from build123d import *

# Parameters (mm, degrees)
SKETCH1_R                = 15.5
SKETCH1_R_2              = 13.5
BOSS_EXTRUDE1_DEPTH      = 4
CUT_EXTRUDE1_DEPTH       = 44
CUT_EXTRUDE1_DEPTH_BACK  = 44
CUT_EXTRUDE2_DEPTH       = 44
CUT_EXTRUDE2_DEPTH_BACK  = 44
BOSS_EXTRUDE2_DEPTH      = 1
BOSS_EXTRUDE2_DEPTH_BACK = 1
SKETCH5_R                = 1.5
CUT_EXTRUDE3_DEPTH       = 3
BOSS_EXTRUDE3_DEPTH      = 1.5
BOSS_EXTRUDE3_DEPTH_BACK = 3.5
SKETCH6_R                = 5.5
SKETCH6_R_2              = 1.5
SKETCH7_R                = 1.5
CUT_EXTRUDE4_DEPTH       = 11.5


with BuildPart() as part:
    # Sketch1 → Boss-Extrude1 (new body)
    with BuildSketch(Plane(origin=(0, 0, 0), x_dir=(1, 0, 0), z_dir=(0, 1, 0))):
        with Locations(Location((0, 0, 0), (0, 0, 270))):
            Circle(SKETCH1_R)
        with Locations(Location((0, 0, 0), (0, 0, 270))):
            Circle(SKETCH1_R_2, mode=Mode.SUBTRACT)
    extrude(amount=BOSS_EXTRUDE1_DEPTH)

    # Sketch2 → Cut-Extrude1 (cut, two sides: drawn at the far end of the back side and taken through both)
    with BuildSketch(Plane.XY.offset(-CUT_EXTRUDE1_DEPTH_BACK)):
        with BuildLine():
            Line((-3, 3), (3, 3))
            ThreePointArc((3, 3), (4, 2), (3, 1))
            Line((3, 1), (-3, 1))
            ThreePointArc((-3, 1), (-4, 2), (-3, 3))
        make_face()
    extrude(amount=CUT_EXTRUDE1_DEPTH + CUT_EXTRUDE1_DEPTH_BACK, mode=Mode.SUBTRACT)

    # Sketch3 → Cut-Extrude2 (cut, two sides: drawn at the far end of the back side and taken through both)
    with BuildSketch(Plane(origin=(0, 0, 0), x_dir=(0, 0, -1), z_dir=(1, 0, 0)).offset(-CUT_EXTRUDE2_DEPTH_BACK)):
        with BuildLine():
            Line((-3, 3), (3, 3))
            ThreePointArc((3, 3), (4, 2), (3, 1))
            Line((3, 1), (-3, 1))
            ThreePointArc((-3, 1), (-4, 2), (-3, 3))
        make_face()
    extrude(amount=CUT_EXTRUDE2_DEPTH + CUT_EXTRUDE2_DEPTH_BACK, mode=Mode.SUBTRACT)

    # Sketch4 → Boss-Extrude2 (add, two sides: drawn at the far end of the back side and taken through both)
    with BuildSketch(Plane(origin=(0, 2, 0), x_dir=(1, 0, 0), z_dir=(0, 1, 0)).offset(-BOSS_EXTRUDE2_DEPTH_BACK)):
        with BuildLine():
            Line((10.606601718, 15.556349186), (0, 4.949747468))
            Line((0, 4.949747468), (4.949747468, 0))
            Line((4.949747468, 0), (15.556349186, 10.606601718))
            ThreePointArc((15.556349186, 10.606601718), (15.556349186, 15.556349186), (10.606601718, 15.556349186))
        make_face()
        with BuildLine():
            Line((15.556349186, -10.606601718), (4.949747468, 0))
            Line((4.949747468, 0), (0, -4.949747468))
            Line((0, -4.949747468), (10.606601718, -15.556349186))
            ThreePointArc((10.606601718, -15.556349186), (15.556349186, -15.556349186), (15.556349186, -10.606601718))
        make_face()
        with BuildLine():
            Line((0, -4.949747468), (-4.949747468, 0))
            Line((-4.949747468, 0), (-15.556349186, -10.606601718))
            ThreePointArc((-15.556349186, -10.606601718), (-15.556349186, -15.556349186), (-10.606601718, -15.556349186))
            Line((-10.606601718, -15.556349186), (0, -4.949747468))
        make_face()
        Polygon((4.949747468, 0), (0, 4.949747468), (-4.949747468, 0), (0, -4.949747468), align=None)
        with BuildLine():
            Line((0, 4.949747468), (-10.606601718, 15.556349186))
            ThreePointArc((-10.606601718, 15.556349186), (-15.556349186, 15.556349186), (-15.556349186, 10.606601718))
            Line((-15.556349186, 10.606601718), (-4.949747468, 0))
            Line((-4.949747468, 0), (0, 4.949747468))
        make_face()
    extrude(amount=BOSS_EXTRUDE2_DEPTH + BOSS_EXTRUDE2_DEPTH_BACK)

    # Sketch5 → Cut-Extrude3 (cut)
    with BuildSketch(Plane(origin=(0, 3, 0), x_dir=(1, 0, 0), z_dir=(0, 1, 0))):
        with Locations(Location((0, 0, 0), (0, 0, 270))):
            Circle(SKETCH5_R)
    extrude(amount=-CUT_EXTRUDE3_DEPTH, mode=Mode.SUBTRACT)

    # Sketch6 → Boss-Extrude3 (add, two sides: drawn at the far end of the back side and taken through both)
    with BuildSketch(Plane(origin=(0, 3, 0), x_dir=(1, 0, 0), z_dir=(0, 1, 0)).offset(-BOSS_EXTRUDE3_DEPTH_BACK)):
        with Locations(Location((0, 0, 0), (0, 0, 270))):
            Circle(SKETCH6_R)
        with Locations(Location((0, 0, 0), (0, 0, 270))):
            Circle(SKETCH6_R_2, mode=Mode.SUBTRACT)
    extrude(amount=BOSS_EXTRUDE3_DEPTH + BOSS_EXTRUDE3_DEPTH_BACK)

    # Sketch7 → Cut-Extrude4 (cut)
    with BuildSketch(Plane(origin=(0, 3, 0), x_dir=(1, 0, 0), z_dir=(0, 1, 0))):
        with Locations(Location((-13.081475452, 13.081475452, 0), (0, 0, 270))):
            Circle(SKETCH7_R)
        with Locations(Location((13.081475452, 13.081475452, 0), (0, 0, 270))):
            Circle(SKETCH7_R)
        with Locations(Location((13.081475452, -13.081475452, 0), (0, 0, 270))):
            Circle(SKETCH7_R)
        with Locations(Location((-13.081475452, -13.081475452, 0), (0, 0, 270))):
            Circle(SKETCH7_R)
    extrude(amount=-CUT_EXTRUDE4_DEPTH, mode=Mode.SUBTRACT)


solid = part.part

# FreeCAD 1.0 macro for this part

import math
import FreeCAD as App
import Part
import Sketcher
from FreeCAD import Vector
Q = App.Units.Quantity

doc = App.newDocument("Part")
body = doc.addObject("PartDesign::Body", "Body")

# Sketch on XZ plane
sketch1 = body.newObject("Sketcher::SketchObject", "Sketch")
sketch1.AttachmentSupport = (doc.getObject("XZ_Plane"), [""])
sketch1.MapMode = "FlatFace"
sketch1.addGeometry([
    Part.Circle(Vector(0, 0, 0), Vector(0, 0, 1), 16),
    Part.Circle(Vector(0, 0, 0), Vector(0, 0, 1), 14),
], False)
sketch1.addConstraint([
    Sketcher.Constraint("Coincident", 0, 3, -1, 1),
    Sketcher.Constraint("Coincident", 1, 3, -1, 1),
    Sketcher.Constraint("Diameter", 0, Q("31 mm")),
    Sketcher.Constraint("Diameter", 1, Q("27 mm")),
])
pad1 = body.newObject("PartDesign::Pad", "Pad")
pad1.Profile = sketch1
pad1.Length = 4
pad1.Reversed = True

# Sketch on XY plane
sketch2 = body.newObject("Sketcher::SketchObject", "Sketch001")
sketch2.AttachmentSupport = (doc.getObject("XY_Plane"), [""])
sketch2.MapMode = "FlatFace"
sketch2.addGeometry([
    Part.LineSegment(Vector(3, 3, 0), Vector(-3, 3, 0)),
    Part.ArcOfCircle(Part.Circle(Vector(-3, 2, 0), Vector(0, 0, 1), 1), math.radians(90), math.radians(270)),
    Part.LineSegment(Vector(-3, 1, 0), Vector(3, 1, 0)),
    Part.ArcOfCircle(Part.Circle(Vector(3, 2, 0), Vector(0, 0, 1), 1), math.radians(-90), math.radians(90)),
], False)
sketch2.addConstraint([
    Sketcher.Constraint("Tangent", 0, 2, 1, 1),
    Sketcher.Constraint("Tangent", 1, 2, 2, 1),
    Sketcher.Constraint("Tangent", 2, 2, 3, 1),
    Sketcher.Constraint("Tangent", 3, 2, 0, 1),
    Sketcher.Constraint("Horizontal", 0),
    Sketcher.Constraint("Horizontal", 2),
    Sketcher.Constraint("Radius", 1, Q("1 mm")),
    Sketcher.Constraint("DistanceX", 0, 2, 0, 1, Q("6 mm")),
    Sketcher.Constraint("DistanceX", 1, 3, -1, 1, Q("3 mm")),
    Sketcher.Constraint("DistanceY", -1, 1, 1, 3, Q("2 mm")),
])
pocket1 = body.newObject("PartDesign::Pocket", "Pocket")
pocket1.Profile = sketch2
pocket1.Type = "ThroughAll"
pocket1.Midplane = True

# Sketch on YZ plane
sketch3 = body.newObject("Sketcher::SketchObject", "Sketch002")
sketch3.AttachmentSupport = (doc.getObject("YZ_Plane"), [""])
sketch3.MapMode = "FlatFace"
sketch3.addGeometry([
    Part.LineSegment(Vector(3, -3, 0), Vector(3, 3, 0)),
    Part.ArcOfCircle(Part.Circle(Vector(2, 3, 0), Vector(0, 0, 1), 1), math.radians(0), math.radians(180)),
    Part.LineSegment(Vector(1, 3, 0), Vector(1, -3, 0)),
    Part.ArcOfCircle(Part.Circle(Vector(2, -3, 0), Vector(0, 0, 1), 1), math.radians(180), math.radians(360)),
], False)
sketch3.addConstraint([
    Sketcher.Constraint("Tangent", 0, 2, 1, 1),
    Sketcher.Constraint("Tangent", 1, 2, 2, 1),
    Sketcher.Constraint("Tangent", 2, 2, 3, 1),
    Sketcher.Constraint("Tangent", 3, 2, 0, 1),
    Sketcher.Constraint("Vertical", 0),
    Sketcher.Constraint("Vertical", 2),
    Sketcher.Constraint("Radius", 1, Q("1 mm")),
    Sketcher.Constraint("DistanceY", 0, 1, 0, 2, Q("6 mm")),
    Sketcher.Constraint("DistanceX", -1, 1, 1, 3, Q("2 mm")),
    Sketcher.Constraint("DistanceY", -1, 1, 1, 3, Q("3 mm")),
])
pocket2 = body.newObject("PartDesign::Pocket", "Pocket001")
pocket2.Profile = sketch3
pocket2.Type = "ThroughAll"
pocket2.Midplane = True

# Sketch on XZ plane
sketch4 = body.newObject("Sketcher::SketchObject", "Sketch003")
sketch4.AttachmentSupport = (doc.getObject("XZ_Plane"), [""])
sketch4.MapMode = "FlatFace"
sketch4.AttachmentOffset = App.Placement(Vector(0, 0, -2), App.Rotation())
sketch4.addGeometry([
    Part.LineSegment(Vector(10.6, -15.6, 0), Vector(0, -4.9, 0)),  # 0
    Part.LineSegment(Vector(0, -4.9, 0), Vector(-10.6, -15.6, 0)),  # 1
    Part.ArcOfCircle(Part.Circle(Vector(-13.1, -13.1, 0), Vector(0, 0, 1), 3.5), math.radians(135), math.radians(315)),  # 2
    Part.LineSegment(Vector(-15.6, -10.6, 0), Vector(-4.9, 0, 0)),  # 3
    Part.LineSegment(Vector(-4.9, 0, 0), Vector(-15.6, 10.6, 0)),  # 4
    Part.ArcOfCircle(Part.Circle(Vector(-13.1, 13.1, 0), Vector(0, 0, 1), 3.5), math.radians(45), math.radians(225)),  # 5
    Part.LineSegment(Vector(-10.6, 15.6, 0), Vector(0, 4.9, 0)),  # 6
    Part.LineSegment(Vector(0, 4.9, 0), Vector(10.6, 15.6, 0)),  # 7
    Part.ArcOfCircle(Part.Circle(Vector(13.1, 13.1, 0), Vector(0, 0, 1), 3.5), math.radians(-45), math.radians(135)),  # 8
    Part.LineSegment(Vector(15.6, 10.6, 0), Vector(4.9, 0, 0)),  # 9
    Part.LineSegment(Vector(4.9, 0, 0), Vector(15.6, -10.6, 0)),  # 10
    Part.ArcOfCircle(Part.Circle(Vector(13.1, -13.1, 0), Vector(0, 0, 1), 3.5), math.radians(-135), math.radians(45)),  # 11
], False)
sketch4.addConstraint([
    Sketcher.Constraint("Coincident", 0, 2, 1, 1),
    Sketcher.Constraint("Tangent", 1, 2, 2, 2),
    Sketcher.Constraint("Tangent", 2, 1, 3, 1),
    Sketcher.Constraint("Coincident", 3, 2, 4, 1),
    Sketcher.Constraint("Tangent", 4, 2, 5, 2),
    Sketcher.Constraint("Tangent", 5, 1, 6, 1),
    Sketcher.Constraint("Coincident", 6, 2, 7, 1),
    Sketcher.Constraint("Tangent", 7, 2, 8, 2),
    Sketcher.Constraint("Tangent", 8, 1, 9, 1),
    Sketcher.Constraint("Coincident", 9, 2, 10, 1),
    Sketcher.Constraint("Tangent", 10, 2, 11, 2),
    Sketcher.Constraint("Tangent", 11, 1, 0, 1),
    Sketcher.Constraint("Equal", 2, 5),
    Sketcher.Constraint("Equal", 5, 8),
    Sketcher.Constraint("Equal", 8, 11),
    Sketcher.Constraint("Symmetric", 2, 3, 8, 3, -1, 1),
    Sketcher.Constraint("Symmetric", 5, 3, 11, 3, -1, 1),
    Sketcher.Constraint("Symmetric", 0, 2, 6, 2, -1, 1),
    Sketcher.Constraint("Symmetric", 3, 2, 9, 2, -1, 1),
    Sketcher.Constraint("Symmetric", 5, 3, 8, 3, -2),
    Sketcher.Constraint("PointOnObject", 0, 2, -2),
    Sketcher.Constraint("PointOnObject", 3, 2, -1),
    Sketcher.Constraint("Perpendicular", 0, 1),
    Sketcher.Constraint("Parallel", 1, 3),
    Sketcher.Constraint("Equal", 1, 3),
    Sketcher.Constraint("Radius", 2, Q("3.5 mm")),
    Sketcher.Constraint("Distance", 0, Q("15 mm")),
])
pad2 = body.newObject("PartDesign::Pad", "Pad001")
pad2.Profile = sketch4
pad2.Type = "TwoLengths"
pad2.Length = 1
pad2.Length2 = 1
pad2.Reversed = True

# Sketch on XZ plane
sketch5 = body.newObject("Sketcher::SketchObject", "Sketch004")
sketch5.AttachmentSupport = (doc.getObject("XZ_Plane"), [""])
sketch5.MapMode = "FlatFace"
sketch5.AttachmentOffset = App.Placement(Vector(0, 0, -3), App.Rotation())
sketch5.addGeometry(Part.Circle(Vector(0, 0, 0), Vector(0, 0, 1), 1.5), False)
sketch5.addConstraint([
    Sketcher.Constraint("Coincident", 0, 3, -1, 1),
    Sketcher.Constraint("Diameter", 0, Q("3 mm")),
])
pocket3 = body.newObject("PartDesign::Pocket", "Pocket002")
pocket3.Profile = sketch5
pocket3.Length = 3
pocket3.Reversed = True

# Sketch on XZ plane
sketch6 = body.newObject("Sketcher::SketchObject", "Sketch005")
sketch6.AttachmentSupport = (doc.getObject("XZ_Plane"), [""])
sketch6.MapMode = "FlatFace"
sketch6.AttachmentOffset = App.Placement(Vector(0, 0, -3), App.Rotation())
sketch6.addGeometry([
    Part.Circle(Vector(0, 0, 0), Vector(0, 0, 1), 5.5),
    Part.Circle(Vector(0, 0, 0), Vector(0, 0, 1), 1.5),
], False)
sketch6.addConstraint([
    Sketcher.Constraint("Coincident", 0, 3, -1, 1),
    Sketcher.Constraint("Coincident", 1, 3, -1, 1),
    Sketcher.Constraint("Diameter", 0, Q("11 mm")),
    Sketcher.Constraint("Diameter", 1, Q("3 mm")),
])
pad3 = body.newObject("PartDesign::Pad", "Pad002")
pad3.Profile = sketch6
pad3.Type = "TwoLengths"
pad3.Length = 1.5
pad3.Length2 = 3.5
pad3.Reversed = True

# Sketch on XZ plane
sketch7 = body.newObject("Sketcher::SketchObject", "Sketch006")
sketch7.AttachmentSupport = (doc.getObject("XZ_Plane"), [""])
sketch7.MapMode = "FlatFace"
sketch7.AttachmentOffset = App.Placement(Vector(0, 0, -3), App.Rotation())
sketch7.addGeometry([
    Part.Circle(Vector(-13.1, -13.1, 0), Vector(0, 0, 1), 1.5),
    Part.Circle(Vector(13.1, -13.1, 0), Vector(0, 0, 1), 1.5),
    Part.Circle(Vector(13.1, 13.1, 0), Vector(0, 0, 1), 1.5),
    Part.Circle(Vector(-13.1, 13.1, 0), Vector(0, 0, 1), 1.5),
], False)
sketch7.addConstraint([
    Sketcher.Constraint("Equal", 0, 1),
    Sketcher.Constraint("Equal", 1, 2),
    Sketcher.Constraint("Equal", 2, 3),
    Sketcher.Constraint("Symmetric", 0, 3, 2, 3, -1, 1),
    Sketcher.Constraint("Symmetric", 1, 3, 3, 3, -1, 1),
    Sketcher.Constraint("Symmetric", 0, 3, 1, 3, -2),
    Sketcher.Constraint("Diameter", 0, Q("3 mm")),
    Sketcher.Constraint("DistanceX", 0, 3, 1, 3, Q("26.162951 mm")),
    Sketcher.Constraint("DistanceY", 1, 3, 2, 3, Q("26.162951 mm")),
])
pocket4 = body.newObject("PartDesign::Pocket", "Pocket003")
pocket4.Profile = sketch7
pocket4.Length = 11.5
pocket4.Reversed = True

doc.recompute()
